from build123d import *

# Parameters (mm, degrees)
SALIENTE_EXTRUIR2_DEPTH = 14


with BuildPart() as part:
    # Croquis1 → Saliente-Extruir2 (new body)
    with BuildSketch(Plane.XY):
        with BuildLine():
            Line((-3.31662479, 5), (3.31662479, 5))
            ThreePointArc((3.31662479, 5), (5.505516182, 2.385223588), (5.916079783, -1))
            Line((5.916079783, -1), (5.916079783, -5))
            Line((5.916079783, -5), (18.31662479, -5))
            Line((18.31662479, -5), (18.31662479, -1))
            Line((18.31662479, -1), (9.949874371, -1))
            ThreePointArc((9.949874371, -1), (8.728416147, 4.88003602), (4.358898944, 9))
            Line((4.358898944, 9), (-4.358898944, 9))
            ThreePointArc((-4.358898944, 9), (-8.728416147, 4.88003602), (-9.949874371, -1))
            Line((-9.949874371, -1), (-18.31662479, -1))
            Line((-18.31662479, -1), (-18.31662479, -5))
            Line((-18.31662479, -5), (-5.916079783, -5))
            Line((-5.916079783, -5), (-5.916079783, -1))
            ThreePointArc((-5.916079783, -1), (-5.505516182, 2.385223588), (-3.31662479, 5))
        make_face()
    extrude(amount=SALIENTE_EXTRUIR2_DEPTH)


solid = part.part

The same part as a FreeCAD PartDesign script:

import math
import FreeCAD as App
import Part
import Sketcher

V = App.Vector

doc = App.newDocument("Part")
body = doc.addObject("PartDesign::Body", "Body")

# Sketch on XY plane
sketch1 = doc.addObject("Sketcher::SketchObject", "Sketch")
body.addObject(sketch1)
sketch1.AttachmentSupport = (doc.XY_Plane, [""])
sketch1.MapMode = "FlatFace"
sketch1.addGeometry([
    Part.LineSegment(V(-3.3, 5, 0), V(3.3, 5, 0)),  # 0
    Part.ArcOfCircle(Part.Circle(V(0, 0, 0), V(0, 0, 1), 6), math.radians(-10), math.radians(56)),  # 1
    Part.LineSegment(V(5.9, -1, 0), V(5.9, -5, 0)),  # 2
    Part.LineSegment(V(5.9, -5, 0), V(18.3, -5, 0)),  # 3
    Part.LineSegment(V(18.3, -5, 0), V(18.3, -1, 0)),  # 4
    Part.LineSegment(V(18.3, -1, 0), V(9.9, -1, 0)),  # 5
    Part.ArcOfCircle(Part.Circle(V(0, 0, 0), V(0, 0, 1), 10), math.radians(-6), math.radians(64)),  # 6
    Part.LineSegment(V(4.4, 9, 0), V(-4.4, 9, 0)),  # 7
    Part.ArcOfCircle(Part.Circle(V(0, 0, 0), V(0, 0, 1), 10), math.radians(116), math.radians(186)),  # 8
    Part.LineSegment(V(-9.9, -1, 0), V(-18.3, -1, 0)),  # 9
    Part.LineSegment(V(-18.3, -1, 0), V(-18.3, -5, 0)),  # 10
    Part.LineSegment(V(-18.3, -5, 0), V(-5.9, -5, 0)),  # 11
    Part.LineSegment(V(-5.9, -5, 0), V(-5.9, -1, 0)),  # 12
    Part.ArcOfCircle(Part.Circle(V(0, 0, 0), V(0, 0, 1), 6), math.radians(124), math.radians(190)),  # 13
], False)
sketch1.addConstraint([
    Sketcher.Constraint("Coincident", 0, 2, 1, 2),
    Sketcher.Constraint("Coincident", 1, 1, 2, 1),
    Sketcher.Constraint("Coincident", 2, 2, 3, 1),
    Sketcher.Constraint("Coincident", 3, 2, 4, 1),
    Sketcher.Constraint("Coincident", 4, 2, 5, 1),
    Sketcher.Constraint("Coincident", 5, 2, 6, 1),
    Sketcher.Constraint("Coincident", 6, 2, 7, 1),
    Sketcher.Constraint("Coincident", 7, 2, 8, 1),
    Sketcher.Constraint("Coincident", 8, 2, 9, 1),
    Sketcher.Constraint("Coincident", 9, 2, 10, 1),
    Sketcher.Constraint("Coincident", 10, 2, 11, 1),
    Sketcher.Constraint("Coincident", 11, 2, 12, 1),
    Sketcher.Constraint("Coincident", 12, 2, 13, 2),
    Sketcher.Constraint("Coincident", 13, 1, 0, 1),
    Sketcher.Constraint("Horizontal", 0),
    Sketcher.Constraint("Vertical", 2),
    Sketcher.Constraint("Horizontal", 3),
    Sketcher.Constraint("Vertical", 4),
    Sketcher.Constraint("Horizontal", 5),
    Sketcher.Constraint("Horizontal", 7),
    Sketcher.Constraint("Horizontal", 9),
    Sketcher.Constraint("Vertical", 10),
    Sketcher.Constraint("Horizontal", 11),
    Sketcher.Constraint("Vertical", 12),
    Sketcher.Constraint("Coincident", 1, 3, -1, 1),
    Sketcher.Constraint("Coincident", 6, 3, -1, 1),
    Sketcher.Constraint("Coincident", 8, 3, -1, 1),
    Sketcher.Constraint("Coincident", 13, 3, -1, 1),
    Sketcher.Constraint("Equal", 6, 8),
    Sketcher.Constraint("Equal", 1, 13),
    Sketcher.Constraint("Symmetric", 4, 2, 9, 2, -2),
    Sketcher.Constraint("Symmetric", 2, 2, 11, 2, -2),
    Sketcher.Constraint("Horizontal", 1, 1, 4, 2),
    Sketcher.Constraint("Radius", 1, 6.0),
    Sketcher.Constraint("Radius", 6, 10.0),
    Sketcher.Constraint("DistanceY", 2, 2, 2, 1, 4.0),
    Sketcher.Constraint("DistanceY", -1, 1, 0, 2, 5.0),
    Sketcher.Constraint("DistanceY", 1, 1, -1, 1, 1.0),
    Sketcher.Constraint("DistanceY", -1, 1, 6, 2, 9.0),
    Sketcher.Constraint("DistanceX", 0, 2, 3, 2, 15.0),
])
pad1 = doc.addObject("PartDesign::Pad", "Pad")
body.addObject(pad1)
pad1.Profile = sketch1
pad1.Length = 14

doc.recompute()
